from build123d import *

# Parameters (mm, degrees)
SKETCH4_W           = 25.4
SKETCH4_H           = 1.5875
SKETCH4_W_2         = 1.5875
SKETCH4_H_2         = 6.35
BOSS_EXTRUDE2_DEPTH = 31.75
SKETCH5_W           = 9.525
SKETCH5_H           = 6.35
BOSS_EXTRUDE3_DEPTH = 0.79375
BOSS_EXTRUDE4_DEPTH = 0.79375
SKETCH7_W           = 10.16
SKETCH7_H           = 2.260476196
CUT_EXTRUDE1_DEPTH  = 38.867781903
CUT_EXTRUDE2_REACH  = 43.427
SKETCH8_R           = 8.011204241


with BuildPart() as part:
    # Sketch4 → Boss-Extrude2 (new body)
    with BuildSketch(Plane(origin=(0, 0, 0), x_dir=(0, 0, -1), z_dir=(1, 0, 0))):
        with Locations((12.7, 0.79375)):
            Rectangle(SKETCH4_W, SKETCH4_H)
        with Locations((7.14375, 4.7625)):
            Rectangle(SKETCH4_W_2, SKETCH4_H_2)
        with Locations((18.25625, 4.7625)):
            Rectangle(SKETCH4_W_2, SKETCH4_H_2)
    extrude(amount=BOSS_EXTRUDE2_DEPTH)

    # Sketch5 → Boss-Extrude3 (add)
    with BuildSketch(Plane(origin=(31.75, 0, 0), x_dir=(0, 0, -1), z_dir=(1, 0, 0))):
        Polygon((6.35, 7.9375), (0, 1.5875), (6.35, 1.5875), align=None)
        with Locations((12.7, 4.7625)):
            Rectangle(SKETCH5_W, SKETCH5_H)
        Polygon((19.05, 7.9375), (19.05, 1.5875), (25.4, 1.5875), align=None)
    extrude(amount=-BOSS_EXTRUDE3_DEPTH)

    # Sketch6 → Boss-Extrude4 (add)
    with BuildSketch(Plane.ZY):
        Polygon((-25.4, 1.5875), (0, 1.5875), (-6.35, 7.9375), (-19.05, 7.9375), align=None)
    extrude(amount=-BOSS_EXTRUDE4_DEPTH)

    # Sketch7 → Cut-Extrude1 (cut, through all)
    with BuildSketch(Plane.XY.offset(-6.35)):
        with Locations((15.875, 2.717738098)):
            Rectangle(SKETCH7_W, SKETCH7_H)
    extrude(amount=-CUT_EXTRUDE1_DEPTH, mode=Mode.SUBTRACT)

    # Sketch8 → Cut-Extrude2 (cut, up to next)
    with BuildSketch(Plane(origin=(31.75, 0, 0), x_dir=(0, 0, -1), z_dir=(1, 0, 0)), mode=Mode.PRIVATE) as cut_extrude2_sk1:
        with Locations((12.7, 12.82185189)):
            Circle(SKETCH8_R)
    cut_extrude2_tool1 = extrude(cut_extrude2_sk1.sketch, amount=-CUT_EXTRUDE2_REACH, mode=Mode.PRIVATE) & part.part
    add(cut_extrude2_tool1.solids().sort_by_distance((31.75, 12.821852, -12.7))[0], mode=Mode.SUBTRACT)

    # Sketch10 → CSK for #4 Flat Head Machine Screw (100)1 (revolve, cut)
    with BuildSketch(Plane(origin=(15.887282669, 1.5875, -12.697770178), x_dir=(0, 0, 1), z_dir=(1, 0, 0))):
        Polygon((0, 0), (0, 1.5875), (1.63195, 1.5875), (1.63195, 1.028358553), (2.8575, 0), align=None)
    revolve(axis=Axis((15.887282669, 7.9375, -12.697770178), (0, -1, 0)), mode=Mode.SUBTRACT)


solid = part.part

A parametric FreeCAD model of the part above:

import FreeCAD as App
import Part
import Sketcher

V = App.Vector
Q = App.Units.Quantity

doc = App.newDocument("Part")
params = doc.addObject("Spreadsheet::Sheet", "Params")
for row, (alias, value) in enumerate([
    ("sketch1_height", "1 in"),
    ("sketch1_width", "0.25 in"),
    ("sketch1_width2", "0.0625 in"),
    ("pad1_length", "1.25 in"),
    ("sketch2_width", "0.25 in"),
    ("sketch2_height", "0.375 in"),
    ("pad2_length", "0.03125 in"),
    ("sketch3_height", "1 in"),
    ("sketch3_height2", "0.5 in"),
    ("pad3_length", "0.03125 in"),
    ("sketch4_width", "0.4 in"),
    ("pocket2_length", "1.25 in"),
    ("sketch6_width", "0.0625 in"),
    ("groove_angle", "360 deg"),
], start=1):
    params.set(f"A{row}", alias)
    params.set(f"B{row}", "=" + value)
    params.setAlias(f"B{row}", alias)

body = doc.addObject("PartDesign::Body", "Body")

# Sketch on YZ plane
sketch1 = body.newObject("Sketcher::SketchObject", "Sketch")
sketch1.AttachmentSupport = (doc.getObject("YZ_Plane"), [""])
sketch1.MapMode = "FlatFace"
sketch1.addGeometry(Part.LineSegment(V(1.6, 0, 0), V(0, 0, 0)), False)
sketch1.addGeometry(Part.LineSegment(V(0, 0, 0), V(0, -25.4, 0)), False)
sketch1.addGeometry(Part.LineSegment(V(0, -25.4, 0), V(1.6, -25.4, 0)), False)
sketch1.addGeometry(Part.LineSegment(V(1.6, -25.4, 0), V(1.6, -19.1, 0)), False)
sketch1.addGeometry(Part.LineSegment(V(1.6, -19.1, 0), V(7.9, -19.1, 0)), False)
sketch1.addGeometry(Part.LineSegment(V(7.9, -19.1, 0), V(7.9, -17.5, 0)), False)
sketch1.addGeometry(Part.LineSegment(V(7.9, -17.5, 0), V(1.6, -17.5, 0)), False)
sketch1.addGeometry(Part.LineSegment(V(1.6, -17.5, 0), V(1.6, -7.9, 0)), False)
sketch1.addGeometry(Part.LineSegment(V(1.6, -7.9, 0), V(7.9, -7.9, 0)), False)
sketch1.addGeometry(Part.LineSegment(V(7.9, -7.9, 0), V(7.9, -6.3, 0)), False)
sketch1.addGeometry(Part.LineSegment(V(7.9, -6.3, 0), V(1.6, -6.3, 0)), False)
sketch1.addGeometry(Part.LineSegment(V(1.6, -6.3, 0), V(1.6, 0, 0)), False)
sketch1.addConstraint(Sketcher.Constraint("Coincident", 0, 2, 1, 1))
sketch1.addConstraint(Sketcher.Constraint("Coincident", 1, 2, 2, 1))
sketch1.addConstraint(Sketcher.Constraint("Coincident", 2, 2, 3, 1))
sketch1.addConstraint(Sketcher.Constraint("Coincident", 3, 2, 4, 1))
sketch1.addConstraint(Sketcher.Constraint("Coincident", 4, 2, 5, 1))
sketch1.addConstraint(Sketcher.Constraint("Coincident", 5, 2, 6, 1))
sketch1.addConstraint(Sketcher.Constraint("Coincident", 6, 2, 7, 1))
sketch1.addConstraint(Sketcher.Constraint("Coincident", 7, 2, 8, 1))
sketch1.addConstraint(Sketcher.Constraint("Coincident", 8, 2, 9, 1))
sketch1.addConstraint(Sketcher.Constraint("Coincident", 9, 2, 10, 1))
sketch1.addConstraint(Sketcher.Constraint("Coincident", 10, 2, 11, 1))
sketch1.addConstraint(Sketcher.Constraint("Coincident", 11, 2, 0, 1))
sketch1.addConstraint(Sketcher.Constraint("Horizontal", 0))
sketch1.addConstraint(Sketcher.Constraint("Vertical", 1))
sketch1.addConstraint(Sketcher.Constraint("Horizontal", 2))
sketch1.addConstraint(Sketcher.Constraint("Vertical", 3))
sketch1.addConstraint(Sketcher.Constraint("Horizontal", 4))
sketch1.addConstraint(Sketcher.Constraint("Vertical", 5))
sketch1.addConstraint(Sketcher.Constraint("Horizontal", 6))
sketch1.addConstraint(Sketcher.Constraint("Vertical", 7))
sketch1.addConstraint(Sketcher.Constraint("Horizontal", 8))
sketch1.addConstraint(Sketcher.Constraint("Vertical", 9))
sketch1.addConstraint(Sketcher.Constraint("Horizontal", 10))
sketch1.addConstraint(Sketcher.Constraint("Vertical", 11))
sketch1.addConstraint(Sketcher.Constraint("Coincident", 0, 2, -1, 1))
sketch1.addConstraint(Sketcher.Constraint("Vertical", 3, 2, 6, 2))
sketch1.addConstraint(Sketcher.Constraint("Vertical", 5, 2, 8, 2))
sketch1.addConstraint(Sketcher.Constraint("Vertical", 7, 2, 10, 2))
sketch1.addConstraint(Sketcher.Constraint("Equal", 10, 3))
sketch1.addConstraint(Sketcher.Constraint("Equal", 2, 5))
sketch1.addConstraint(Sketcher.Constraint("Equal", 5, 9))
sketch1.addConstraint(Sketcher.Constraint("Equal", 3, 11))
sketch1.addConstraint(Sketcher.Constraint("DistanceY", 1, 2, 1, 1, Q("1 in")))
sketch1.addConstraint(Sketcher.Constraint("DistanceX", 4, 1, 4, 2, Q("0.25 in")))
sketch1.addConstraint(Sketcher.Constraint("DistanceX", 0, 2, 0, 1, Q("0.0625 in")))
sketch1.setExpression("Constraints[32]", "Params.sketch1_height")
sketch1.setExpression("Constraints[33]", "Params.sketch1_width")
sketch1.setExpression("Constraints[34]", "Params.sketch1_width2")
pad1 = body.newObject("PartDesign::Pad", "Pad")
pad1.Profile = sketch1
pad1.setExpression("Length", "Params.pad1_length")

# Sketch on YZ plane
sketch2 = body.newObject("Sketcher::SketchObject", "Sketch001")
sketch2.AttachmentSupport = (doc.getObject("YZ_Plane"), [""])
sketch2.MapMode = "FlatFace"
sketch2.AttachmentOffset = App.Placement(V(0, 0, 1.25 * 25.4), App.Rotation())
sketch2.addGeometry(Part.LineSegment(V(8, -6, 0), V(2, 0, 0)), False)
sketch2.addGeometry(Part.LineSegment(V(2, 0, 0), V(2, -6, 0)), False)
sketch2.addGeometry(Part.LineSegment(V(2, -6, 0), V(8, -6, 0)), False)
sketch2.addGeometry(Part.LineSegment(V(8, -8, 0), V(2, -8, 0)), False)
sketch2.addGeometry(Part.LineSegment(V(2, -8, 0), V(2, -17, 0)), False)
sketch2.addGeometry(Part.LineSegment(V(2, -17, 0), V(8, -17, 0)), False)
sketch2.addGeometry(Part.LineSegment(V(8, -17, 0), V(8, -8, 0)), False)
sketch2.addGeometry(Part.LineSegment(V(8, -19, 0), V(2, -19, 0)), False)
sketch2.addGeometry(Part.LineSegment(V(2, -19, 0), V(2, -25, 0)), False)
sketch2.addGeometry(Part.LineSegment(V(2, -25, 0), V(8, -19, 0)), False)
sketch2.addConstraint(Sketcher.Constraint("Coincident", 0, 2, 1, 1))
sketch2.addConstraint(Sketcher.Constraint("Coincident", 1, 2, 2, 1))
sketch2.addConstraint(Sketcher.Constraint("Coincident", 2, 2, 0, 1))
sketch2.addConstraint(Sketcher.Constraint("Coincident", 3, 2, 4, 1))
sketch2.addConstraint(Sketcher.Constraint("Coincident", 4, 2, 5, 1))
sketch2.addConstraint(Sketcher.Constraint("Coincident", 5, 2, 6, 1))
sketch2.addConstraint(Sketcher.Constraint("Coincident", 6, 2, 3, 1))
sketch2.addConstraint(Sketcher.Constraint("Coincident", 7, 2, 8, 1))
sketch2.addConstraint(Sketcher.Constraint("Coincident", 8, 2, 9, 1))
sketch2.addConstraint(Sketcher.Constraint("Coincident", 9, 2, 7, 1))
sketch2.addConstraint(Sketcher.Constraint("Vertical", 1))
sketch2.addConstraint(Sketcher.Constraint("Horizontal", 2))
sketch2.addConstraint(Sketcher.Constraint("Horizontal", 3))
sketch2.addConstraint(Sketcher.Constraint("Vertical", 4))
sketch2.addConstraint(Sketcher.Constraint("Horizontal", 5))
sketch2.addConstraint(Sketcher.Constraint("Vertical", 6))
sketch2.addConstraint(Sketcher.Constraint("Horizontal", 7))
sketch2.addConstraint(Sketcher.Constraint("Vertical", 8))
sketch2.addConstraint(Sketcher.Constraint("PointOnObject", 0, 2, -1))
sketch2.addConstraint(Sketcher.Constraint("Perpendicular", 0, 9))
sketch2.addConstraint(Sketcher.Constraint("Vertical", 1, 2, 3, 2))
sketch2.addConstraint(Sketcher.Constraint("Vertical", 2, 2, 5, 2))
sketch2.addConstraint(Sketcher.Constraint("Vertical", 4, 2, 7, 2))
sketch2.addConstraint(Sketcher.Constraint("Vertical", 6, 2, 9, 2))
sketch2.addConstraint(Sketcher.Constraint("Equal", 7, 1))
sketch2.addConstraint(Sketcher.Constraint("DistanceY", 8, 2, -1, 1, Q("1 in")))
sketch2.addConstraint(Sketcher.Constraint("DistanceX", 2, 1, 2, 2, Q("0.25 in")))
sketch2.addConstraint(Sketcher.Constraint("DistanceY", 4, 2, 4, 1, Q("0.375 in")))
sketch2.addConstraint(Sketcher.Constraint("DistanceX", -1, 1, 0, 2, Q("0.0625 in")))
sketch2.addConstraint(Sketcher.Constraint("DistanceY", 3, 2, -1, 1, Q("0.3125 in")))
sketch2.setExpression("Constraints[26]", "Params.sketch2_width")
sketch2.setExpression("Constraints[27]", "Params.sketch2_height")
pad2 = body.newObject("PartDesign::Pad", "Pad001")
pad2.Profile = sketch2
pad2.setExpression("Length", "Params.pad2_length")
pad2.Reversed = True

# Sketch on YZ plane
sketch3 = body.newObject("Sketcher::SketchObject", "Sketch002")
sketch3.AttachmentSupport = (doc.getObject("YZ_Plane"), [""])
sketch3.MapMode = "FlatFace"
sketch3.addGeometry(Part.LineSegment(V(2, -25, 0), V(2, 0, 0)), False)
sketch3.addGeometry(Part.LineSegment(V(2, 0, 0), V(8, -6, 0)), False)
sketch3.addGeometry(Part.LineSegment(V(8, -6, 0), V(8, -19, 0)), False)
sketch3.addGeometry(Part.LineSegment(V(8, -19, 0), V(2, -25, 0)), False)
sketch3.addConstraint(Sketcher.Constraint("Coincident", 0, 2, 1, 1))
sketch3.addConstraint(Sketcher.Constraint("Coincident", 1, 2, 2, 1))
sketch3.addConstraint(Sketcher.Constraint("Coincident", 2, 2, 3, 1))
sketch3.addConstraint(Sketcher.Constraint("Coincident", 3, 2, 0, 1))
sketch3.addConstraint(Sketcher.Constraint("Vertical", 0))
sketch3.addConstraint(Sketcher.Constraint("Vertical", 2))
sketch3.addConstraint(Sketcher.Constraint("PointOnObject", 0, 2, -1))
sketch3.addConstraint(Sketcher.Constraint("Perpendicular", 1, 3))
sketch3.addConstraint(Sketcher.Constraint("Equal", 1, 3))
sketch3.addConstraint(Sketcher.Constraint("DistanceY", 0, 1, 0, 2, Q("1 in")))
sketch3.addConstraint(Sketcher.Constraint("DistanceY", 2, 2, 2, 1, Q("0.5 in")))
sketch3.addConstraint(Sketcher.Constraint("DistanceX", -1, 1, 0, 2, Q("0.0625 in")))
sketch3.setExpression("Constraints[9]", "Params.sketch3_height")
sketch3.setExpression("Constraints[10]", "Params.sketch3_height2")
pad3 = body.newObject("PartDesign::Pad", "Pad002")
pad3.Profile = sketch3
pad3.setExpression("Length", "Params.pad3_length")

# Sketch on XY plane
sketch4 = body.newObject("Sketcher::SketchObject", "Sketch003")
sketch4.AttachmentSupport = (doc.getObject("XY_Plane"), [""])
sketch4.MapMode = "FlatFace"
sketch4.AttachmentOffset = App.Placement(V(0, 0, -0.25 * 25.4), App.Rotation())
sketch4.addGeometry(Part.LineSegment(V(10.8, 3.8, 0), V(10.8, 1.6, 0)), False)
sketch4.addGeometry(Part.LineSegment(V(10.8, 1.6, 0), V(21, 1.6, 0)), False)
sketch4.addGeometry(Part.LineSegment(V(21, 1.6, 0), V(21, 3.8, 0)), False)
sketch4.addGeometry(Part.LineSegment(V(21, 3.8, 0), V(10.8, 3.8, 0)), False)
sketch4.addConstraint(Sketcher.Constraint("Coincident", 0, 2, 1, 1))
sketch4.addConstraint(Sketcher.Constraint("Coincident", 1, 2, 2, 1))
sketch4.addConstraint(Sketcher.Constraint("Coincident", 2, 2, 3, 1))
sketch4.addConstraint(Sketcher.Constraint("Coincident", 3, 2, 0, 1))
sketch4.addConstraint(Sketcher.Constraint("Vertical", 0))
sketch4.addConstraint(Sketcher.Constraint("Horizontal", 1))
sketch4.addConstraint(Sketcher.Constraint("Vertical", 2))
sketch4.addConstraint(Sketcher.Constraint("Horizontal", 3))
sketch4.addConstraint(Sketcher.Constraint("DistanceX", 1, 1, 1, 2, Q("0.4 in")))
sketch4.addConstraint(Sketcher.Constraint("DistanceX", -1, 1, 0, 2, Q("0.425 in")))
sketch4.addConstraint(Sketcher.Constraint("DistanceY", -1, 1, 0, 2, Q("0.0625 in")))
sketch4.addConstraint(Sketcher.Constraint("DistanceY", 0, 2, 0, 1, Q("2.260476 mm")))
sketch4.setExpression("Constraints[8]", "Params.sketch4_width")
pocket1 = body.newObject("PartDesign::Pocket", "Pocket")
pocket1.Profile = sketch4
pocket1.Type = "ThroughAll"

# Sketch on YZ plane
sketch5 = body.newObject("Sketcher::SketchObject", "Sketch004")
sketch5.AttachmentSupport = (doc.getObject("YZ_Plane"), [""])
sketch5.MapMode = "FlatFace"
sketch5.AttachmentOffset = App.Placement(V(0, 0, 1.25 * 25.4), App.Rotation())
sketch5.addGeometry(Part.Circle(V(13, -13, 0), V(0, 0, 1), 8), False)
sketch5.addConstraint(Sketcher.Constraint("DistanceY", 0, 3, -1, 1, Q("0.5 in")))
sketch5.addConstraint(Sketcher.Constraint("Diameter", 0, Q("16.022408 mm")))
sketch5.addConstraint(Sketcher.Constraint("DistanceX", -1, 1, 0, 3, Q("12.821852 mm")))
pocket2 = body.newObject("PartDesign::Pocket", "Pocket001")
pocket2.Profile = sketch5
pocket2.setExpression("Length", "Params.pocket2_length")

# Sketch on YZ plane
sketch6 = body.newObject("Sketcher::SketchObject", "Sketch005")
sketch6.AttachmentSupport = (doc.getObject("YZ_Plane"), [""])
sketch6.MapMode = "FlatFace"
sketch6.AttachmentOffset = App.Placement(V(0, 0, 15.887283), App.Rotation())
sketch6.addGeometry(Part.LineSegment(V(0, -12.7, 0), V(1.6, -12.7, 0)), False)
sketch6.addGeometry(Part.LineSegment(V(1.6, -12.7, 0), V(1.6, -9.8, 0)), False)
sketch6.addGeometry(Part.LineSegment(V(1.6, -9.8, 0), V(0.6, -11.1, 0)), False)
sketch6.addGeometry(Part.LineSegment(V(0.6, -11.1, 0), V(0, -11.1, 0)), False)
sketch6.addGeometry(Part.LineSegment(V(0, -11.1, 0), V(0, -12.7, 0)), False)
sketch6.addGeometry(Part.LineSegment(V(1.6, -12.7, 0), V(0, -12.7, 0)), True)  # axis
sketch6.addConstraint(Sketcher.Constraint("Coincident", 0, 2, 1, 1))
sketch6.addConstraint(Sketcher.Constraint("Coincident", 1, 2, 2, 1))
sketch6.addConstraint(Sketcher.Constraint("Coincident", 2, 2, 3, 1))
sketch6.addConstraint(Sketcher.Constraint("Coincident", 3, 2, 4, 1))
sketch6.addConstraint(Sketcher.Constraint("Coincident", 4, 2, 0, 1))
sketch6.addConstraint(Sketcher.Constraint("Horizontal", 0))
sketch6.addConstraint(Sketcher.Constraint("Vertical", 1))
sketch6.addConstraint(Sketcher.Constraint("Horizontal", 3))
sketch6.addConstraint(Sketcher.Constraint("Vertical", 4))
sketch6.addConstraint(Sketcher.Constraint("Horizontal", 5))
sketch6.addConstraint(Sketcher.Constraint("Coincident", 5, 1, 0, 2))
sketch6.addConstraint(Sketcher.Constraint("PointOnObject", 3, 2, -2))
sketch6.addConstraint(Sketcher.Constraint("PointOnObject", 5, 2, -2))
sketch6.addConstraint(Sketcher.Constraint("Angle", 2, Q("-130 deg")))
sketch6.addConstraint(Sketcher.Constraint("DistanceX", 0, 1, 0, 2, Q("0.0625 in")))
sketch6.addConstraint(Sketcher.Constraint("DistanceY", 1, 1, 1, 2, Q("0.1125 in")))
sketch6.addConstraint(Sketcher.Constraint("DistanceX", 3, 2, 3, 1, Q("0.559141 mm")))
sketch6.addConstraint(Sketcher.Constraint("DistanceY", 0, 2, -1, 1, Q("12.69777 mm")))
sketch6.setExpression("Constraints[14]", "Params.sketch6_width")
groove = body.newObject("PartDesign::Groove", "Groove")
groove.Profile = sketch6
groove.ReferenceAxis = (sketch6, ["Axis0"])
groove.setExpression("Angle", "Params.groove_angle")

doc.recompute()
